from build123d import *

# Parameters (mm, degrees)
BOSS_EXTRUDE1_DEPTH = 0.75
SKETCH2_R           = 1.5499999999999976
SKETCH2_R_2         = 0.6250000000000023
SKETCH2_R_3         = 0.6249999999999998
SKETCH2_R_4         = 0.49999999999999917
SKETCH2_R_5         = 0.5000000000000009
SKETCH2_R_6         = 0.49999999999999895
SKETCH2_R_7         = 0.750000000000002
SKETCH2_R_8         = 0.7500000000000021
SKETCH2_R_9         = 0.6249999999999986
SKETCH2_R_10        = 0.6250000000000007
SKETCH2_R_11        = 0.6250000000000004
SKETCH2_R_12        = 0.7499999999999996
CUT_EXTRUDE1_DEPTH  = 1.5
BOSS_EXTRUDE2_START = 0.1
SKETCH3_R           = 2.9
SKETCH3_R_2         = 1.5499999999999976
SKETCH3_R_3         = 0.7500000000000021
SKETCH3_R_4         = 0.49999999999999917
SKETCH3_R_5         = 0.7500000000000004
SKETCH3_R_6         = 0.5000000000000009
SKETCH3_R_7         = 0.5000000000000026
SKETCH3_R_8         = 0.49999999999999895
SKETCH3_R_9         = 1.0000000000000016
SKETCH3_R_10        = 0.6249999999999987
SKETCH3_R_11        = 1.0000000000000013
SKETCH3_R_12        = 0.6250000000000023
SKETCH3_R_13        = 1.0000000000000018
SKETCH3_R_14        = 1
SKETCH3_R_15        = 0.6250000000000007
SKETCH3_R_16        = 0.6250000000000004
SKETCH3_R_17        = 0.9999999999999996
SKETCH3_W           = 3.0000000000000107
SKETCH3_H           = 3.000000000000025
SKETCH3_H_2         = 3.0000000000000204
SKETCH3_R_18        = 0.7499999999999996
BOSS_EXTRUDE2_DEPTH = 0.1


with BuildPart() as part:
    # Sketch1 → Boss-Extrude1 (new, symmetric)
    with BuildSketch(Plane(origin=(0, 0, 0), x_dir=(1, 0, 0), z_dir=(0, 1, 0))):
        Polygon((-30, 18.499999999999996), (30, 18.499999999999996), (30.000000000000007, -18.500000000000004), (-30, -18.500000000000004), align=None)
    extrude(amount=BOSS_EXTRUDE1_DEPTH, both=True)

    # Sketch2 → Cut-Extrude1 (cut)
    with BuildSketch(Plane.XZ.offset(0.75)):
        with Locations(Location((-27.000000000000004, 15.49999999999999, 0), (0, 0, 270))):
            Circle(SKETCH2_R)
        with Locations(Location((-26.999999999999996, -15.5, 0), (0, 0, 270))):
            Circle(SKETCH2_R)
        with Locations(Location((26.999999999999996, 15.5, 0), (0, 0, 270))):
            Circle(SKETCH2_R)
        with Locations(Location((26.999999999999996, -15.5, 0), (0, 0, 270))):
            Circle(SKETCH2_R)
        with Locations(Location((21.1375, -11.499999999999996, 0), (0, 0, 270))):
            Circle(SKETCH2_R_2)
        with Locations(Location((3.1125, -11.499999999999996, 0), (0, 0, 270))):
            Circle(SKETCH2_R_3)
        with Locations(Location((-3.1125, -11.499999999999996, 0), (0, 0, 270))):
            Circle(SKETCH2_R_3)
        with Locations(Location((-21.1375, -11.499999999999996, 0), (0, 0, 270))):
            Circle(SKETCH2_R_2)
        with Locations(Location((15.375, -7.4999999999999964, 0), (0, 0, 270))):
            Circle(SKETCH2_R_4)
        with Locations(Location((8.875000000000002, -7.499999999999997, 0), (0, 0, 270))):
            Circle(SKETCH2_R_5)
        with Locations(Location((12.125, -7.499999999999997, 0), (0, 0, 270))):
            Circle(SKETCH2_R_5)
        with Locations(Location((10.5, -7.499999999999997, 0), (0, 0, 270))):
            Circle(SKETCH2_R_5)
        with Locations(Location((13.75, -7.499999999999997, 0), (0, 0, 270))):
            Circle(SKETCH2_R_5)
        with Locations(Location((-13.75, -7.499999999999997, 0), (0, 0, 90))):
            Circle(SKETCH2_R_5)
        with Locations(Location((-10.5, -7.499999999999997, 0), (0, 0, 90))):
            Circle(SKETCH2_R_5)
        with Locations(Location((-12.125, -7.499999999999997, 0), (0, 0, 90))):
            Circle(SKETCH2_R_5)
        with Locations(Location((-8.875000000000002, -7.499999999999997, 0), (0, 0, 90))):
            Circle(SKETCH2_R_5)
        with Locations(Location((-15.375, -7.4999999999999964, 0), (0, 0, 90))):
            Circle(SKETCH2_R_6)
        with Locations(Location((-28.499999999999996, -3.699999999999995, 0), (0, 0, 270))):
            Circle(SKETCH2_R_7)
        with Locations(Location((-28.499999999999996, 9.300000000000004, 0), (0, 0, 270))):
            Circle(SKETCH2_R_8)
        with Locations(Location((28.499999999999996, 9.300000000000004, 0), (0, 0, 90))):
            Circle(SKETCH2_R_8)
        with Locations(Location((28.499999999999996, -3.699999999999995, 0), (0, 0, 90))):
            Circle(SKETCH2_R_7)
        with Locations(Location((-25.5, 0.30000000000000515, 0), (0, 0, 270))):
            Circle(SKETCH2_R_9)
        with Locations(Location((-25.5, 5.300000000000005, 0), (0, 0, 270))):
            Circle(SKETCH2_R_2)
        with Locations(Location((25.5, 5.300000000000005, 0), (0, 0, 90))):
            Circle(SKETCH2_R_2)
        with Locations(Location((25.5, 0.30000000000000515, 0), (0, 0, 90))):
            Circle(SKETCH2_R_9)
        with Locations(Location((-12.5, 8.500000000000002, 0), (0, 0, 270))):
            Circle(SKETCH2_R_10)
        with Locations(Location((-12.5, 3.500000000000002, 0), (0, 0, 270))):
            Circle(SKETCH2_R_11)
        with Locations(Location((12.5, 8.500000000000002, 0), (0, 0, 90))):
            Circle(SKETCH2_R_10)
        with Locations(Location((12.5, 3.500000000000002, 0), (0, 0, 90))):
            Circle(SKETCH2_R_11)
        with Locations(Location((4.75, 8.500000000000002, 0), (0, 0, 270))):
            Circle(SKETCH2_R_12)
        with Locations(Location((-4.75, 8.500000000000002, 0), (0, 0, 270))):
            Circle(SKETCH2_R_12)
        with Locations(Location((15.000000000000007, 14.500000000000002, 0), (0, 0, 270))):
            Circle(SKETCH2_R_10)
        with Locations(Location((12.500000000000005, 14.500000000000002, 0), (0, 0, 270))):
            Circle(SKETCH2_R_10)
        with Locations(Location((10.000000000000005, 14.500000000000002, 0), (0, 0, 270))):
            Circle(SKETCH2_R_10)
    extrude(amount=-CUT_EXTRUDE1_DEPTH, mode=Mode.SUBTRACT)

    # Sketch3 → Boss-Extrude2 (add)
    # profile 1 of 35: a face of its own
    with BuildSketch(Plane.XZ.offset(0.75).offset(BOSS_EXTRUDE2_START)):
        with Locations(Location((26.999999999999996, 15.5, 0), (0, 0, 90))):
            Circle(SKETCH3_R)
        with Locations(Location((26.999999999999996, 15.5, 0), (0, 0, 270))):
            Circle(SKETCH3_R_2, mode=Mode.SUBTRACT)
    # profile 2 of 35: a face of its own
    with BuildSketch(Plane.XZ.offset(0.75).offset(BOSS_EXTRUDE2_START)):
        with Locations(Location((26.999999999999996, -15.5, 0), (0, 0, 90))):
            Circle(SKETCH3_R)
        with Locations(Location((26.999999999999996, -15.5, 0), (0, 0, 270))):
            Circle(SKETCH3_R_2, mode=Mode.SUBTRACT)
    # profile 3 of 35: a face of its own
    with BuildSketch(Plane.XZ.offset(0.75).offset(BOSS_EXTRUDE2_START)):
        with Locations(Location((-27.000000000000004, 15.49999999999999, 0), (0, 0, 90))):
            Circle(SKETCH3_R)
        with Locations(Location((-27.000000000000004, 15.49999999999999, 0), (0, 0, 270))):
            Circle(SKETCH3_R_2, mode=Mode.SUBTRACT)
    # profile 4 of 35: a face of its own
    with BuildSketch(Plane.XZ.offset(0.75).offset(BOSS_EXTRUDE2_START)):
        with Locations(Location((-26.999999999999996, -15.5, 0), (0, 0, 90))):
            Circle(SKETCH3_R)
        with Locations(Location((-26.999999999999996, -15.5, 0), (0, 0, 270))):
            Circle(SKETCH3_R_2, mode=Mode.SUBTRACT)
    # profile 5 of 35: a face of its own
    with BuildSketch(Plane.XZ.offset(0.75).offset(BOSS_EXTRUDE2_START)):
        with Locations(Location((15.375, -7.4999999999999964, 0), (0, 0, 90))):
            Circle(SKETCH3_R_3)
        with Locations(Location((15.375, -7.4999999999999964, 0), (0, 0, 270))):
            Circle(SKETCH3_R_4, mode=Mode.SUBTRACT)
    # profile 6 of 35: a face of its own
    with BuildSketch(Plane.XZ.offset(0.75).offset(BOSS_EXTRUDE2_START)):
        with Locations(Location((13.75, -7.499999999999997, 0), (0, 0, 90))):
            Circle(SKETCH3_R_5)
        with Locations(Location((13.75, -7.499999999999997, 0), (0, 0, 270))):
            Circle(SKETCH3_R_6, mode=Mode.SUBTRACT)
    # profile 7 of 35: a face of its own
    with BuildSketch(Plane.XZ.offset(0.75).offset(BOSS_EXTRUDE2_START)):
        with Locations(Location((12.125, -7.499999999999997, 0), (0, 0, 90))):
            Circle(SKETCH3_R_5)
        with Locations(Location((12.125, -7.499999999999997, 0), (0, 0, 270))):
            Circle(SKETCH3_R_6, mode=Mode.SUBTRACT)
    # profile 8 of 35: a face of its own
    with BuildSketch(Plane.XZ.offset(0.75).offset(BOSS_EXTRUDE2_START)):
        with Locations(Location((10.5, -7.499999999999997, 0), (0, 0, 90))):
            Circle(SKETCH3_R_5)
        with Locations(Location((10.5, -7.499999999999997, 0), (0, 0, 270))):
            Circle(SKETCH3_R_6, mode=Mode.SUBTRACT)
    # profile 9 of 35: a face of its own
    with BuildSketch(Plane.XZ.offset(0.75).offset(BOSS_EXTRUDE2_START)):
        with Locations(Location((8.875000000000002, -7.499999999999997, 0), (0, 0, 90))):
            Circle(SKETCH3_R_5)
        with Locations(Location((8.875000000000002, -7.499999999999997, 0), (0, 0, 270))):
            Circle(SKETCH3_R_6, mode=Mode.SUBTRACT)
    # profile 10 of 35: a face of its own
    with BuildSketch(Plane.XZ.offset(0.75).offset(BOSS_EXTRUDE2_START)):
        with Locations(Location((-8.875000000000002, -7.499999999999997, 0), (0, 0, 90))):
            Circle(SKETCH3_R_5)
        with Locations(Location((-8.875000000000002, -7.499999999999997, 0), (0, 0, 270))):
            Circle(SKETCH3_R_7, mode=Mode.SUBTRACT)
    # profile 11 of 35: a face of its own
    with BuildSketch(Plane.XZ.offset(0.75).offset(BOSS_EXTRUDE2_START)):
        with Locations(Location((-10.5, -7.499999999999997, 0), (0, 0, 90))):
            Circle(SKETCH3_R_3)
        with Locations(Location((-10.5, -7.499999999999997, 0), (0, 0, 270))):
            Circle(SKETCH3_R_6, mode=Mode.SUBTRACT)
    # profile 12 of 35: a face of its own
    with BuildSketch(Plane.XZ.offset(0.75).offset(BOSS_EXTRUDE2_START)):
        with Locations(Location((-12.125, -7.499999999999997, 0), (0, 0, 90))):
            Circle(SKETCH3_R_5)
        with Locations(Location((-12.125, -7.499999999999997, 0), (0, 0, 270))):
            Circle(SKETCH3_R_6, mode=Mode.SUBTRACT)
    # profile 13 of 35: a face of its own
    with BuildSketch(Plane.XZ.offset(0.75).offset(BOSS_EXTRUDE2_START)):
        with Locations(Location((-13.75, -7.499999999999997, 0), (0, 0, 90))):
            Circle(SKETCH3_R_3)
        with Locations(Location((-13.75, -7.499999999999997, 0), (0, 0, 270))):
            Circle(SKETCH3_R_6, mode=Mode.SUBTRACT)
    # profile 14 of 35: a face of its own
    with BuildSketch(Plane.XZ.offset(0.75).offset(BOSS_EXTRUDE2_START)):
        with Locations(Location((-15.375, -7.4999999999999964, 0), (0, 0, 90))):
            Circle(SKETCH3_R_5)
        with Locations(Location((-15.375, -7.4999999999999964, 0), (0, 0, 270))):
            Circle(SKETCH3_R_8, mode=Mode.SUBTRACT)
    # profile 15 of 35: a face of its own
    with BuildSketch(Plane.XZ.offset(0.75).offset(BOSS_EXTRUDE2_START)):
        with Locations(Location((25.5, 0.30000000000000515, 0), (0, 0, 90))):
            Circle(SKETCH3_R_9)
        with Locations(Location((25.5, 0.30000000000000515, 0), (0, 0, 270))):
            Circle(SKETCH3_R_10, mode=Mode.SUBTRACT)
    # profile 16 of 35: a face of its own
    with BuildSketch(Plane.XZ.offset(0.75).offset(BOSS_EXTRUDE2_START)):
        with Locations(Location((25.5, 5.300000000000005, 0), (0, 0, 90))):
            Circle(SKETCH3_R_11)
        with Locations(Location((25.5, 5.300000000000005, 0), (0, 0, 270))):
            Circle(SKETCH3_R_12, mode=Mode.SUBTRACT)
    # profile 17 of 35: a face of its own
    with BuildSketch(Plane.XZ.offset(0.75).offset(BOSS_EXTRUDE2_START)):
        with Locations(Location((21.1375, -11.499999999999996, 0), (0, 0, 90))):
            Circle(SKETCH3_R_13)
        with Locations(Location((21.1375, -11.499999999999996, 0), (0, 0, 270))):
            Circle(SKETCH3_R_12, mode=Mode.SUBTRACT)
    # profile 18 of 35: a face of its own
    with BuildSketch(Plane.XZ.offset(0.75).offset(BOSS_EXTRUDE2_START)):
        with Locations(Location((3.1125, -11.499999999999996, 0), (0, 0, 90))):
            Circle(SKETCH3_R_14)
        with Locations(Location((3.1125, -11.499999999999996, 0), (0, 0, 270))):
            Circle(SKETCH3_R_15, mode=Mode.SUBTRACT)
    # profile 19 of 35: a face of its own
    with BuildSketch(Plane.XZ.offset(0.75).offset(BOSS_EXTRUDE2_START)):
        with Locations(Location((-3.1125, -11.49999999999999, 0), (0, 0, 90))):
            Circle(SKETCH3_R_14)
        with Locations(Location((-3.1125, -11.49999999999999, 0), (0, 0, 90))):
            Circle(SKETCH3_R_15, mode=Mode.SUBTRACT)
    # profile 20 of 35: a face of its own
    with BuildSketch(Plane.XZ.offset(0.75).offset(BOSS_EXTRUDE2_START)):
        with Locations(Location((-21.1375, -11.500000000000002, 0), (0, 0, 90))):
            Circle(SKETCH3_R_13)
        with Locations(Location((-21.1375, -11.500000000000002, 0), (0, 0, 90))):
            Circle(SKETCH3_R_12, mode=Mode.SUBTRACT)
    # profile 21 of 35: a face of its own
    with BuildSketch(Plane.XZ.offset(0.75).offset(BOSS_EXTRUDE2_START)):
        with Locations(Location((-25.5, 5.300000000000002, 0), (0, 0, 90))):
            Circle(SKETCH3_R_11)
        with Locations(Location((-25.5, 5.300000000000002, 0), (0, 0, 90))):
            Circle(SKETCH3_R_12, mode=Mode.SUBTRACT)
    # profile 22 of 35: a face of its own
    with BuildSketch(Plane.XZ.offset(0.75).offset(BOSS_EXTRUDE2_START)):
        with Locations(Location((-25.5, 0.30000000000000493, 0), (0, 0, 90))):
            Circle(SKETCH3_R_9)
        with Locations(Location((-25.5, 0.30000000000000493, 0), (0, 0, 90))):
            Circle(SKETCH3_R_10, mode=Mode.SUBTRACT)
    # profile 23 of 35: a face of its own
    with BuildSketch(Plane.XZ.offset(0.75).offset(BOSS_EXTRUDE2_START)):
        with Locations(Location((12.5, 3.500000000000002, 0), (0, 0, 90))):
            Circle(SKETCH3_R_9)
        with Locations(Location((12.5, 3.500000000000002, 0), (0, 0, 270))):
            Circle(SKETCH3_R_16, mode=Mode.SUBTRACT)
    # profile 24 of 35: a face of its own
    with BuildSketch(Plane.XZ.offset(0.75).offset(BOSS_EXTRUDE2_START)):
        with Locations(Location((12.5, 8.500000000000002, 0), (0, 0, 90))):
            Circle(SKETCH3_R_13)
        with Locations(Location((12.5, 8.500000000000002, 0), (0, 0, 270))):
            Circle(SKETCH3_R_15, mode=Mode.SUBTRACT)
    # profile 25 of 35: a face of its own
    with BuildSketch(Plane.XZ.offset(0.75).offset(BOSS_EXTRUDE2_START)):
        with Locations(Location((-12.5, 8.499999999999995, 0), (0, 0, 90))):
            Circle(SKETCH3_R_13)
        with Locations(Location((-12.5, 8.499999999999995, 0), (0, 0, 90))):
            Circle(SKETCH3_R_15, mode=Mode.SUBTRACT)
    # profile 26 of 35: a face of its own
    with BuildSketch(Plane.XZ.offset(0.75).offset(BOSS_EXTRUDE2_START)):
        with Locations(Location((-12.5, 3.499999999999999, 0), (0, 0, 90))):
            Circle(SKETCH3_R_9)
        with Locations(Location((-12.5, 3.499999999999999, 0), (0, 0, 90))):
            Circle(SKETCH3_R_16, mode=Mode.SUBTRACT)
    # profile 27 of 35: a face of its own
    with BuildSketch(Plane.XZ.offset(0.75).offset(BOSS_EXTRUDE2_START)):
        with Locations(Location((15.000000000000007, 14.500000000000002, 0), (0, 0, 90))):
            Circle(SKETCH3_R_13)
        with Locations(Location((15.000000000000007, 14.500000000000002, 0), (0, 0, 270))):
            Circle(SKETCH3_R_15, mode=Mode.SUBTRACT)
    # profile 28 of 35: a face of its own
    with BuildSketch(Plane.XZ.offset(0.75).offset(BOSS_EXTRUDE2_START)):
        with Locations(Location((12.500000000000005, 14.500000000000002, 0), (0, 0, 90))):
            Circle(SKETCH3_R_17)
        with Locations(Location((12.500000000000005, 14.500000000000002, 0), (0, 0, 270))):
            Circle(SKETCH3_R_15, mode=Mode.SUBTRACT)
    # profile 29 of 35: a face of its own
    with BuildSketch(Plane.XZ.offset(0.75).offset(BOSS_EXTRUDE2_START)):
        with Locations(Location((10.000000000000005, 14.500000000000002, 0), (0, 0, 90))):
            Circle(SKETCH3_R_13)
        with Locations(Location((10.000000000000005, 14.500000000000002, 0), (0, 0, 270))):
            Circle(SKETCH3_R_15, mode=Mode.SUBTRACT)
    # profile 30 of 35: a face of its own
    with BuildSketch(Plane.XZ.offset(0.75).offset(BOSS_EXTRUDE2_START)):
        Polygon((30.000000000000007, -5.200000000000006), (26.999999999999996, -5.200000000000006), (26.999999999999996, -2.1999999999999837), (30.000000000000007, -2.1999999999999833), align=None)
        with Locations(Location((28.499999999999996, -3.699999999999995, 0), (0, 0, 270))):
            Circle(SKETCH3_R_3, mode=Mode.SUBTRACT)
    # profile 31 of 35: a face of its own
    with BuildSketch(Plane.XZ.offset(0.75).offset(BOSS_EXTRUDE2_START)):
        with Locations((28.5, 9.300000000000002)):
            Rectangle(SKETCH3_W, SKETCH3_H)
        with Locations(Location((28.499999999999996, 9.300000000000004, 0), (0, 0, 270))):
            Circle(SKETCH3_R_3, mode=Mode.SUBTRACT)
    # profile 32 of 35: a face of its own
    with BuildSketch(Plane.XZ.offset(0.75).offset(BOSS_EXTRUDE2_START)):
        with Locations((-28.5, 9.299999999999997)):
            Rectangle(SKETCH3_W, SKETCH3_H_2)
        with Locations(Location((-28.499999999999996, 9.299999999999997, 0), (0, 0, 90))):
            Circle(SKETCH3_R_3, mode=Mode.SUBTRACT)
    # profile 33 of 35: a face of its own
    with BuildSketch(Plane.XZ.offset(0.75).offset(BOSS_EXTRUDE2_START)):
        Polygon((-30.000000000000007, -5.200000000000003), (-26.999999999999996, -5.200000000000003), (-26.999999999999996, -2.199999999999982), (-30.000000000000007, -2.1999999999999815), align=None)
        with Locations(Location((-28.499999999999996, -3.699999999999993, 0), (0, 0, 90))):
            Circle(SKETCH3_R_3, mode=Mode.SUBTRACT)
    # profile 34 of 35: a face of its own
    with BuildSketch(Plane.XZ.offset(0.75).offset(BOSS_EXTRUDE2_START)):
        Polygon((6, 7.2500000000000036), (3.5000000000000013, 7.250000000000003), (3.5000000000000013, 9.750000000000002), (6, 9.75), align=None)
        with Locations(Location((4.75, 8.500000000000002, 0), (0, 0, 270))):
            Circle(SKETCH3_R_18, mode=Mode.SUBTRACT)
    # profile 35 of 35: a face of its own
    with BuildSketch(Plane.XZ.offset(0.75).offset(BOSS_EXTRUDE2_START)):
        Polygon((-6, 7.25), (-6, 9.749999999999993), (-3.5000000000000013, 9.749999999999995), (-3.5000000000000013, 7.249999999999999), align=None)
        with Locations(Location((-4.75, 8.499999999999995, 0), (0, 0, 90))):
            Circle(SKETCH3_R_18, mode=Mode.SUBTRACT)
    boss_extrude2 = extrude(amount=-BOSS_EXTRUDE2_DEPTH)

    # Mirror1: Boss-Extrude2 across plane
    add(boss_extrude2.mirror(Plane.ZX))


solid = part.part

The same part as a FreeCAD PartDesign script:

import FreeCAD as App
import Part
import Sketcher

V = App.Vector

doc = App.newDocument("Part")
params = doc.addObject("Spreadsheet::Sheet", "Params")
for row, (alias, value) in enumerate([
    ("sketch1_width", "60 mm"),
    ("sketch1_height", "37 mm"),
    ("pad1_length", "1.5 mm"),
    ("sketch2_diameter", "1 mm"),
    ("sketch2_diameter2", "3.1 mm"),
    ("sketch2_diameter3", "1.5 mm"),
    ("sketch2_diameter4", "1.25 mm"),
    ("pocket1_length", "1.5 mm"),
    ("sketch3_diameter", "1 mm"),
    ("sketch3_diameter2", "2 mm"),
    ("sketch3_diameter3", "5.8 mm"),
    ("sketch3_diameter4", "3.1 mm"),
    ("sketch3_diameter5", "1.5 mm"),
    ("pad2_length", "0.1 mm"),
], start=1):
    params.set(f"A{row}", alias)
    params.set(f"B{row}", "=" + value)
    params.setAlias(f"B{row}", alias)

body = doc.addObject("PartDesign::Body", "Body")

# Sketch on XZ plane
sketch1 = body.newObject("Sketcher::SketchObject", "Sketch")
sketch1.AttachmentSupport = (doc.getObject("XZ_Plane"), [""])
sketch1.MapMode = "FlatFace"
sketch1.addGeometry([
    Part.LineSegment(V(30, -18.5, 0), V(-30, -18.5, 0)),
    Part.LineSegment(V(-30, -18.5, 0), V(-30, 18.5, 0)),
    Part.LineSegment(V(-30, 18.5, 0), V(30, 18.5, 0)),
    Part.LineSegment(V(30, 18.5, 0), V(30, -18.5, 0)),
], False)
sketch1.addConstraint([
    Sketcher.Constraint("Coincident", 0, 2, 1, 1),
    Sketcher.Constraint("Coincident", 1, 2, 2, 1),
    Sketcher.Constraint("Coincident", 2, 2, 3, 1),
    Sketcher.Constraint("Coincident", 3, 2, 0, 1),
    Sketcher.Constraint("Horizontal", 0),
    Sketcher.Constraint("Vertical", 1),
    Sketcher.Constraint("Horizontal", 2),
    Sketcher.Constraint("Vertical", 3),
    Sketcher.Constraint("Symmetric", 0, 2, 2, 2, -1, 1),
    Sketcher.Constraint("DistanceX", 0, 2, 0, 1, 60.0),
    Sketcher.Constraint("DistanceY", 1, 1, 1, 2, 37.0),
])
sketch1.setExpression("Constraints[9]", "Params.sketch1_width")
sketch1.setExpression("Constraints[10]", "Params.sketch1_height")
pad1 = body.newObject("PartDesign::Pad", "Pad")
pad1.Profile = sketch1
pad1.setExpression("Length", "Params.pad1_length")
pad1.Midplane = True

# Sketch on XZ plane
sketch2 = body.newObject("Sketcher::SketchObject", "Sketch001")
sketch2.AttachmentSupport = (doc.getObject("XZ_Plane"), [""])
sketch2.MapMode = "FlatFace"
sketch2.AttachmentOffset = App.Placement(V(0, 0, 0.75), App.Rotation())
sketch2.addGeometry([
    Part.Circle(V(-27, 15.5, 0), V(0, 0, 1), 1.55),  # 0
    Part.Circle(V(-27, -15.5, 0), V(0, 0, 1), 1.55),  # 1
    Part.Circle(V(27, 15.5, 0), V(0, 0, 1), 1.55),  # 2
    Part.Circle(V(27, -15.5, 0), V(0, 0, 1), 1.55),  # 3
    Part.Circle(V(21.1375, -11.5, 0), V(0, 0, 1), 0.625),  # 4
    Part.Circle(V(3.1125, -11.5, 0), V(0, 0, 1), 0.625),  # 5
    Part.Circle(V(-3.1125, -11.5, 0), V(0, 0, 1), 0.625),  # 6
    Part.Circle(V(-21.1375, -11.5, 0), V(0, 0, 1), 0.625),  # 7
    Part.Circle(V(15.375, -7.5, 0), V(0, 0, 1), 0.5),  # 8
    Part.Circle(V(8.875, -7.5, 0), V(0, 0, 1), 0.5),  # 9
    Part.Circle(V(12.125, -7.5, 0), V(0, 0, 1), 0.5),  # 10
    Part.Circle(V(10.5, -7.5, 0), V(0, 0, 1), 0.5),  # 11
    Part.Circle(V(13.75, -7.5, 0), V(0, 0, 1), 0.5),  # 12
    Part.Circle(V(-13.75, -7.5, 0), V(0, 0, 1), 0.5),  # 13
    Part.Circle(V(-10.5, -7.5, 0), V(0, 0, 1), 0.5),  # 14
    Part.Circle(V(-12.125, -7.5, 0), V(0, 0, 1), 0.5),  # 15
    Part.Circle(V(-8.875, -7.5, 0), V(0, 0, 1), 0.5),  # 16
    Part.Circle(V(-15.375, -7.5, 0), V(0, 0, 1), 0.5),  # 17
    Part.Circle(V(-28.5, -3.7, 0), V(0, 0, 1), 0.75),  # 18
    Part.Circle(V(-28.5, 9.3, 0), V(0, 0, 1), 0.75),  # 19
    Part.Circle(V(28.5, 9.3, 0), V(0, 0, 1), 0.75),  # 20
    Part.Circle(V(28.5, -3.7, 0), V(0, 0, 1), 0.75),  # 21
    Part.Circle(V(-25.5, 0.3, 0), V(0, 0, 1), 0.625),  # 22
    Part.Circle(V(-25.5, 5.3, 0), V(0, 0, 1), 0.625),  # 23
    Part.Circle(V(25.5, 5.3, 0), V(0, 0, 1), 0.625),  # 24
    Part.Circle(V(25.5, 0.3, 0), V(0, 0, 1), 0.625),  # 25
    Part.Circle(V(-12.5, 8.5, 0), V(0, 0, 1), 0.625),  # 26
    Part.Circle(V(-12.5, 3.5, 0), V(0, 0, 1), 0.625),  # 27
    Part.Circle(V(12.5, 8.5, 0), V(0, 0, 1), 0.625),  # 28
    Part.Circle(V(12.5, 3.5, 0), V(0, 0, 1), 0.625),  # 29
    Part.Circle(V(4.75, 8.5, 0), V(0, 0, 1), 0.75),  # 30
    Part.Circle(V(-4.75, 8.5, 0), V(0, 0, 1), 0.75),  # 31
    Part.Circle(V(15, 14.5, 0), V(0, 0, 1), 0.625),  # 32
    Part.Circle(V(12.5, 14.5, 0), V(0, 0, 1), 0.625),  # 33
    Part.Circle(V(10, 14.5, 0), V(0, 0, 1), 0.625),  # 34
], False)
sketch2.addConstraint([
    Sketcher.Constraint("Equal", 0, 1),
    Sketcher.Constraint("Equal", 1, 2),
    Sketcher.Constraint("Equal", 2, 3),
    Sketcher.Constraint("Equal", 4, 5),
    Sketcher.Constraint("Equal", 5, 6),
    Sketcher.Constraint("Equal", 6, 7),
    Sketcher.Constraint("Equal", 8, 9),
    Sketcher.Constraint("Equal", 9, 10),
    Sketcher.Constraint("Equal", 10, 11),
    Sketcher.Constraint("Equal", 11, 12),
    Sketcher.Constraint("Equal", 12, 13),
    Sketcher.Constraint("Equal", 13, 14),
    Sketcher.Constraint("Equal", 14, 15),
    Sketcher.Constraint("Equal", 15, 16),
    Sketcher.Constraint("Equal", 16, 17),
    Sketcher.Constraint("Equal", 18, 19),
    Sketcher.Constraint("Equal", 19, 20),
    Sketcher.Constraint("Equal", 20, 21),
    Sketcher.Constraint("Equal", 7, 22),
    Sketcher.Constraint("Equal", 22, 23),
    Sketcher.Constraint("Equal", 23, 24),
    Sketcher.Constraint("Equal", 24, 25),
    Sketcher.Constraint("Equal", 25, 26),
    Sketcher.Constraint("Equal", 26, 27),
    Sketcher.Constraint("Equal", 27, 28),
    Sketcher.Constraint("Equal", 28, 29),
    Sketcher.Constraint("Equal", 21, 30),
    Sketcher.Constraint("Equal", 30, 31),
    Sketcher.Constraint("Equal", 29, 32),
    Sketcher.Constraint("Equal", 32, 33),
    Sketcher.Constraint("Equal", 33, 34),
    Sketcher.Constraint("Symmetric", 1, 3, 2, 3, -1, 1),
    Sketcher.Constraint("Symmetric", 0, 3, 3, 3, -1, 1),
    Sketcher.Constraint("Symmetric", 0, 3, 2, 3, -2),
    Sketcher.Constraint("Symmetric", 5, 3, 6, 3, -2),
    Sketcher.Constraint("Symmetric", 4, 3, 7, 3, -2),
    Sketcher.Constraint("Symmetric", 12, 3, 13, 3, -2),
    Sketcher.Constraint("Symmetric", 11, 3, 14, 3, -2),
    Sketcher.Constraint("Symmetric", 10, 3, 15, 3, -2),
    Sketcher.Constraint("Symmetric", 9, 3, 16, 3, -2),
    Sketcher.Constraint("Symmetric", 8, 3, 17, 3, -2),
    Sketcher.Constraint("Symmetric", 19, 3, 20, 3, -2),
    Sketcher.Constraint("Symmetric", 18, 3, 21, 3, -2),
    Sketcher.Constraint("Symmetric", 23, 3, 24, 3, -2),
    Sketcher.Constraint("Symmetric", 22, 3, 25, 3, -2),
    Sketcher.Constraint("Symmetric", 26, 3, 28, 3, -2),
    Sketcher.Constraint("Symmetric", 27, 3, 29, 3, -2),
    Sketcher.Constraint("Symmetric", 30, 3, 31, 3, -2),
    Sketcher.Constraint("Horizontal", 4, 3, 5, 3),
    Sketcher.Constraint("Horizontal", 8, 3, 9, 3),
    Sketcher.Constraint("Horizontal", 9, 3, 10, 3),
    Sketcher.Constraint("Horizontal", 10, 3, 11, 3),
    Sketcher.Constraint("Horizontal", 11, 3, 12, 3),
    Sketcher.Constraint("Horizontal", 28, 3, 30, 3),
    Sketcher.Constraint("Horizontal", 32, 3, 33, 3),
    Sketcher.Constraint("Horizontal", 33, 3, 34, 3),
    Sketcher.Constraint("Vertical", 18, 3, 19, 3),
    Sketcher.Constraint("Vertical", 22, 3, 23, 3),
    Sketcher.Constraint("Vertical", 26, 3, 27, 3),
    Sketcher.Constraint("Vertical", 29, 3, 33, 3),
    Sketcher.Constraint("Diameter", 8, 1.0),
    Sketcher.Constraint("Diameter", 0, 3.1),
    Sketcher.Constraint("Diameter", 18, 1.5),
    Sketcher.Constraint("Diameter", 4, 1.25),
    Sketcher.Constraint("DistanceX", 0, 3, -1, 1, 27.0),
    Sketcher.Constraint("DistanceX", -1, 1, 32, 3, 15.0),
    Sketcher.Constraint("DistanceX", -1, 1, 34, 3, 10.0),
    Sketcher.Constraint("DistanceY", 1, 3, 0, 3, 31.0),
    Sketcher.Constraint("DistanceY", 3, 3, 4, 3, 4.0),
    Sketcher.Constraint("DistanceY", 4, 3, 8, 3, 4.0),
    Sketcher.Constraint("DistanceY", 18, 3, 19, 3, 13.0),
    Sketcher.Constraint("DistanceX", 18, 3, 22, 3, 3.0),
    Sketcher.Constraint("DistanceY", 18, 3, 22, 3, 4.0),
    Sketcher.Constraint("DistanceY", 22, 3, 23, 3, 5.0),
    Sketcher.Constraint("DistanceX", 23, 3, 26, 3, 13.0),
    Sketcher.Constraint("DistanceY", 15, 3, 26, 3, 16.0),
    Sketcher.Constraint("DistanceY", 27, 3, 26, 3, 5.0),
    Sketcher.Constraint("DistanceX", 27, 3, 14, 3, 2.0),
    Sketcher.Constraint("DistanceY", 28, 3, 32, 3, 6.0),
    Sketcher.Constraint("DistanceX", -1, 1, 11, 3, 10.5),
    Sketcher.Constraint("DistanceY", 18, 3, -1, 1, 3.7),
    Sketcher.Constraint("DistanceX", 9, 3, 8, 3, 6.5),
    Sketcher.Constraint("DistanceX", 31, 3, 30, 3, 9.5),
    Sketcher.Constraint("DistanceX", -1, 1, 12, 3, 13.75),
    Sketcher.Constraint("DistanceX", 6, 3, 4, 3, 24.25),
    Sketcher.Constraint("DistanceX", 10, 3, 8, 3, 3.25),
    Sketcher.Constraint("DistanceX", -1, 1, 8, 3, 15.375),
    Sketcher.Constraint("DistanceX", 5, 3, 4, 3, 18.025),
])
sketch2.setExpression("Constraints[60]", "Params.sketch2_diameter")
sketch2.setExpression("Constraints[61]", "Params.sketch2_diameter2")
sketch2.setExpression("Constraints[62]", "Params.sketch2_diameter3")
sketch2.setExpression("Constraints[63]", "Params.sketch2_diameter4")
pocket1 = body.newObject("PartDesign::Pocket", "Pocket")
pocket1.Profile = sketch2
pocket1.setExpression("Length", "Params.pocket1_length")

# Sketch on XZ plane
sketch3 = body.newObject("Sketcher::SketchObject", "Sketch002")
sketch3.AttachmentSupport = (doc.getObject("XZ_Plane"), [""])
sketch3.MapMode = "FlatFace"
sketch3.AttachmentOffset = App.Placement(V(0, 0, 0.85), App.Rotation())
sketch3.addGeometry([
    Part.Circle(V(27, 15.5, 0), V(0, 0, 1), 2.9),  # 0
    Part.Circle(V(27, 15.5, 0), V(0, 0, 1), 1.55),  # 1
    Part.Circle(V(27, -15.5, 0), V(0, 0, 1), 2.9),  # 2
    Part.Circle(V(27, -15.5, 0), V(0, 0, 1), 1.55),  # 3
    Part.Circle(V(-27, 15.5, 0), V(0, 0, 1), 2.9),  # 4
    Part.Circle(V(-27, 15.5, 0), V(0, 0, 1), 1.55),  # 5
    Part.Circle(V(-27, -15.5, 0), V(0, 0, 1), 2.9),  # 6
    Part.Circle(V(-27, -15.5, 0), V(0, 0, 1), 1.55),  # 7
    Part.Circle(V(15.375, -7.5, 0), V(0, 0, 1), 0.75),  # 8
    Part.Circle(V(15.375, -7.5, 0), V(0, 0, 1), 0.5),  # 9
    Part.Circle(V(13.75, -7.5, 0), V(0, 0, 1), 0.75),  # 10
    Part.Circle(V(13.75, -7.5, 0), V(0, 0, 1), 0.5),  # 11
    Part.Circle(V(12.125, -7.5, 0), V(0, 0, 1), 0.75),  # 12
    Part.Circle(V(12.125, -7.5, 0), V(0, 0, 1), 0.5),  # 13
    Part.Circle(V(10.5, -7.5, 0), V(0, 0, 1), 0.75),  # 14
    Part.Circle(V(10.5, -7.5, 0), V(0, 0, 1), 0.5),  # 15
    Part.Circle(V(8.875, -7.5, 0), V(0, 0, 1), 0.75),  # 16
    Part.Circle(V(8.875, -7.5, 0), V(0, 0, 1), 0.5),  # 17
    Part.Circle(V(-8.875, -7.5, 0), V(0, 0, 1), 0.75),  # 18
    Part.Circle(V(-8.875, -7.5, 0), V(0, 0, 1), 0.5),  # 19
    Part.Circle(V(-10.5, -7.5, 0), V(0, 0, 1), 0.75),  # 20
    Part.Circle(V(-10.5, -7.5, 0), V(0, 0, 1), 0.5),  # 21
    Part.Circle(V(-12.125, -7.5, 0), V(0, 0, 1), 0.75),  # 22
    Part.Circle(V(-12.125, -7.5, 0), V(0, 0, 1), 0.5),  # 23
    Part.Circle(V(-13.75, -7.5, 0), V(0, 0, 1), 0.75),  # 24
    Part.Circle(V(-13.75, -7.5, 0), V(0, 0, 1), 0.5),  # 25
    Part.Circle(V(-15.375, -7.5, 0), V(0, 0, 1), 0.75),  # 26
    Part.Circle(V(-15.375, -7.5, 0), V(0, 0, 1), 0.5),  # 27
    Part.Circle(V(25.5, 0.3, 0), V(0, 0, 1), 1),  # 28
    Part.Circle(V(25.5, 0.3, 0), V(0, 0, 1), 0.625),  # 29
    Part.Circle(V(25.5, 5.3, 0), V(0, 0, 1), 1),  # 30
    Part.Circle(V(25.5, 5.3, 0), V(0, 0, 1), 0.625),  # 31
    Part.Circle(V(21.1375, -11.5, 0), V(0, 0, 1), 1),  # 32
    Part.Circle(V(21.1375, -11.5, 0), V(0, 0, 1), 0.625),  # 33
    Part.Circle(V(3.1125, -11.5, 0), V(0, 0, 1), 1),  # 34
    Part.Circle(V(3.1125, -11.5, 0), V(0, 0, 1), 0.625),  # 35
    Part.Circle(V(-3.1125, -11.5, 0), V(0, 0, 1), 1),  # 36
    Part.Circle(V(-3.1125, -11.5, 0), V(0, 0, 1), 0.625),  # 37
    Part.Circle(V(-21.1375, -11.5, 0), V(0, 0, 1), 1),  # 38
    Part.Circle(V(-21.1375, -11.5, 0), V(0, 0, 1), 0.625),  # 39
    Part.Circle(V(-25.5, 5.3, 0), V(0, 0, 1), 1),  # 40
    Part.Circle(V(-25.5, 5.3, 0), V(0, 0, 1), 0.625),  # 41
    Part.Circle(V(-25.5, 0.3, 0), V(0, 0, 1), 1),  # 42
    Part.Circle(V(-25.5, 0.3, 0), V(0, 0, 1), 0.625),  # 43
    Part.Circle(V(12.5, 3.5, 0), V(0, 0, 1), 1),  # 44
    Part.Circle(V(12.5, 3.5, 0), V(0, 0, 1), 0.625),  # 45
    Part.Circle(V(12.5, 8.5, 0), V(0, 0, 1), 1),  # 46
    Part.Circle(V(12.5, 8.5, 0), V(0, 0, 1), 0.625),  # 47
    Part.Circle(V(-12.5, 8.5, 0), V(0, 0, 1), 1),  # 48
    Part.Circle(V(-12.5, 8.5, 0), V(0, 0, 1), 0.625),  # 49
    Part.Circle(V(-12.5, 3.5, 0), V(0, 0, 1), 1),  # 50
    Part.Circle(V(-12.5, 3.5, 0), V(0, 0, 1), 0.625),  # 51
    Part.Circle(V(15, 14.5, 0), V(0, 0, 1), 1),  # 52
    Part.Circle(V(15, 14.5, 0), V(0, 0, 1), 0.625),  # 53
    Part.Circle(V(12.5, 14.5, 0), V(0, 0, 1), 1),  # 54
    Part.Circle(V(12.5, 14.5, 0), V(0, 0, 1), 0.625),  # 55
    Part.Circle(V(10, 14.5, 0), V(0, 0, 1), 1),  # 56
    Part.Circle(V(10, 14.5, 0), V(0, 0, 1), 0.625),  # 57
    Part.LineSegment(V(27, -5.2, 0), V(30, -5.2, 0)),  # 58
    Part.LineSegment(V(30, -5.2, 0), V(30, -2.2, 0)),  # 59
    Part.LineSegment(V(30, -2.2, 0), V(27, -2.2, 0)),  # 60
    Part.LineSegment(V(27, -2.2, 0), V(27, -5.2, 0)),  # 61
    Part.Circle(V(28.5, -3.7, 0), V(0, 0, 1), 0.75),  # 62
    Part.LineSegment(V(27, 10.8, 0), V(27, 7.8, 0)),  # 63
    Part.LineSegment(V(27, 7.8, 0), V(30, 7.8, 0)),  # 64
    Part.LineSegment(V(30, 7.8, 0), V(30, 10.8, 0)),  # 65
    Part.LineSegment(V(30, 10.8, 0), V(27, 10.8, 0)),  # 66
    Part.Circle(V(28.5, 9.3, 0), V(0, 0, 1), 0.75),  # 67
    Part.LineSegment(V(-30, 10.8, 0), V(-30, 7.8, 0)),  # 68
    Part.LineSegment(V(-30, 7.8, 0), V(-27, 7.8, 0)),  # 69
    Part.LineSegment(V(-27, 7.8, 0), V(-27, 10.8, 0)),  # 70
    Part.LineSegment(V(-27, 10.8, 0), V(-30, 10.8, 0)),  # 71
    Part.Circle(V(-28.5, 9.3, 0), V(0, 0, 1), 0.75),  # 72
    Part.LineSegment(V(-30, -5.2, 0), V(-27, -5.2, 0)),  # 73
    Part.LineSegment(V(-27, -5.2, 0), V(-27, -2.2, 0)),  # 74
    Part.LineSegment(V(-27, -2.2, 0), V(-30, -2.2, 0)),  # 75
    Part.LineSegment(V(-30, -2.2, 0), V(-30, -5.2, 0)),  # 76
    Part.Circle(V(-28.5, -3.7, 0), V(0, 0, 1), 0.75),  # 77
    Part.LineSegment(V(3.5, 7.25, 0), V(6, 7.25, 0)),  # 78
    Part.LineSegment(V(6, 7.25, 0), V(6, 9.75, 0)),  # 79
    Part.LineSegment(V(6, 9.75, 0), V(3.5, 9.75, 0)),  # 80
    Part.LineSegment(V(3.5, 9.75, 0), V(3.5, 7.25, 0)),  # 81
    Part.Circle(V(4.75, 8.5, 0), V(0, 0, 1), 0.75),  # 82
    Part.LineSegment(V(-6, 9.75, 0), V(-6, 7.25, 0)),  # 83
    Part.LineSegment(V(-6, 7.25, 0), V(-3.5, 7.25, 0)),  # 84
    Part.LineSegment(V(-3.5, 7.25, 0), V(-3.5, 9.75, 0)),  # 85
    Part.LineSegment(V(-3.5, 9.75, 0), V(-6, 9.75, 0)),  # 86
    Part.Circle(V(-4.75, 8.5, 0), V(0, 0, 1), 0.75),  # 87
], False)
sketch3.addConstraint([
    Sketcher.Constraint("Coincident", 58, 2, 59, 1),
    Sketcher.Constraint("Coincident", 59, 2, 60, 1),
    Sketcher.Constraint("Coincident", 60, 2, 61, 1),
    Sketcher.Constraint("Coincident", 61, 2, 58, 1),
    Sketcher.Constraint("Coincident", 63, 2, 64, 1),
    Sketcher.Constraint("Coincident", 64, 2, 65, 1),
    Sketcher.Constraint("Coincident", 65, 2, 66, 1),
    Sketcher.Constraint("Coincident", 66, 2, 63, 1),
    Sketcher.Constraint("Coincident", 68, 2, 69, 1),
    Sketcher.Constraint("Coincident", 69, 2, 70, 1),
    Sketcher.Constraint("Coincident", 70, 2, 71, 1),
    Sketcher.Constraint("Coincident", 71, 2, 68, 1),
    Sketcher.Constraint("Coincident", 73, 2, 74, 1),
    Sketcher.Constraint("Coincident", 74, 2, 75, 1),
    Sketcher.Constraint("Coincident", 75, 2, 76, 1),
    Sketcher.Constraint("Coincident", 76, 2, 73, 1),
    Sketcher.Constraint("Coincident", 78, 2, 79, 1),
    Sketcher.Constraint("Coincident", 79, 2, 80, 1),
    Sketcher.Constraint("Coincident", 80, 2, 81, 1),
    Sketcher.Constraint("Coincident", 81, 2, 78, 1),
    Sketcher.Constraint("Coincident", 83, 2, 84, 1),
    Sketcher.Constraint("Coincident", 84, 2, 85, 1),
    Sketcher.Constraint("Coincident", 85, 2, 86, 1),
    Sketcher.Constraint("Coincident", 86, 2, 83, 1),
    Sketcher.Constraint("Horizontal", 58),
    Sketcher.Constraint("Vertical", 59),
    Sketcher.Constraint("Horizontal", 60),
    Sketcher.Constraint("Vertical", 61),
    Sketcher.Constraint("Vertical", 63),
    Sketcher.Constraint("Horizontal", 64),
    Sketcher.Constraint("Vertical", 65),
    Sketcher.Constraint("Horizontal", 66),
    Sketcher.Constraint("Vertical", 68),
    Sketcher.Constraint("Horizontal", 69),
    Sketcher.Constraint("Vertical", 70),
    Sketcher.Constraint("Horizontal", 71),
    Sketcher.Constraint("Horizontal", 73),
    Sketcher.Constraint("Vertical", 74),
    Sketcher.Constraint("Horizontal", 75),
    Sketcher.Constraint("Vertical", 76),
    Sketcher.Constraint("Horizontal", 78),
    Sketcher.Constraint("Vertical", 79),
    Sketcher.Constraint("Horizontal", 80),
    Sketcher.Constraint("Vertical", 81),
    Sketcher.Constraint("Vertical", 83),
    Sketcher.Constraint("Horizontal", 84),
    Sketcher.Constraint("Vertical", 85),
    Sketcher.Constraint("Horizontal", 86),
    Sketcher.Constraint("Coincident", 1, 3, 0, 3),
    Sketcher.Constraint("Coincident", 3, 3, 2, 3),
    Sketcher.Constraint("Coincident", 5, 3, 4, 3),
    Sketcher.Constraint("Coincident", 7, 3, 6, 3),
    Sketcher.Constraint("Coincident", 9, 3, 8, 3),
    Sketcher.Constraint("Coincident", 11, 3, 10, 3),
    Sketcher.Constraint("Coincident", 13, 3, 12, 3),
    Sketcher.Constraint("Coincident", 15, 3, 14, 3),
    Sketcher.Constraint("Coincident", 17, 3, 16, 3),
    Sketcher.Constraint("Coincident", 19, 3, 18, 3),
    Sketcher.Constraint("Coincident", 21, 3, 20, 3),
    Sketcher.Constraint("Coincident", 23, 3, 22, 3),
    Sketcher.Constraint("Coincident", 25, 3, 24, 3),
    Sketcher.Constraint("Coincident", 27, 3, 26, 3),
    Sketcher.Constraint("Coincident", 29, 3, 28, 3),
    Sketcher.Constraint("Coincident", 31, 3, 30, 3),
    Sketcher.Constraint("Coincident", 33, 3, 32, 3),
    Sketcher.Constraint("Coincident", 35, 3, 34, 3),
    Sketcher.Constraint("Coincident", 37, 3, 36, 3),
    Sketcher.Constraint("Coincident", 39, 3, 38, 3),
    Sketcher.Constraint("Coincident", 41, 3, 40, 3),
    Sketcher.Constraint("Coincident", 43, 3, 42, 3),
    Sketcher.Constraint("Coincident", 45, 3, 44, 3),
    Sketcher.Constraint("Coincident", 47, 3, 46, 3),
    Sketcher.Constraint("Coincident", 49, 3, 48, 3),
    Sketcher.Constraint("Coincident", 51, 3, 50, 3),
    Sketcher.Constraint("Coincident", 53, 3, 52, 3),
    Sketcher.Constraint("Coincident", 55, 3, 54, 3),
    Sketcher.Constraint("Coincident", 57, 3, 56, 3),
    Sketcher.Constraint("Equal", 0, 2),
    Sketcher.Constraint("Equal", 1, 3),
    Sketcher.Constraint("Equal", 2, 4),
    Sketcher.Constraint("Equal", 3, 5),
    Sketcher.Constraint("Equal", 4, 6),
    Sketcher.Constraint("Equal", 5, 7),
    Sketcher.Constraint("Equal", 8, 10),
    Sketcher.Constraint("Equal", 9, 11),
    Sketcher.Constraint("Equal", 10, 12),
    Sketcher.Constraint("Equal", 11, 13),
    Sketcher.Constraint("Equal", 12, 14),
    Sketcher.Constraint("Equal", 13, 15),
    Sketcher.Constraint("Equal", 14, 16),
    Sketcher.Constraint("Equal", 15, 17),
    Sketcher.Constraint("Equal", 16, 18),
    Sketcher.Constraint("Equal", 17, 19),
    Sketcher.Constraint("Equal", 18, 20),
    Sketcher.Constraint("Equal", 19, 21),
    Sketcher.Constraint("Equal", 20, 22),
    Sketcher.Constraint("Equal", 21, 23),
    Sketcher.Constraint("Equal", 22, 24),
    Sketcher.Constraint("Equal", 23, 25),
    Sketcher.Constraint("Equal", 24, 26),
    Sketcher.Constraint("Equal", 25, 27),
    Sketcher.Constraint("Equal", 28, 30),
    Sketcher.Constraint("Equal", 29, 31),
    Sketcher.Constraint("Equal", 30, 32),
    Sketcher.Constraint("Equal", 31, 33),
    Sketcher.Constraint("Equal", 32, 34),
    Sketcher.Constraint("Equal", 33, 35),
    Sketcher.Constraint("Equal", 34, 36),
    Sketcher.Constraint("Equal", 35, 37),
    Sketcher.Constraint("Equal", 36, 38),
    Sketcher.Constraint("Equal", 37, 39),
    Sketcher.Constraint("Equal", 38, 40),
    Sketcher.Constraint("Equal", 39, 41),
    Sketcher.Constraint("Equal", 40, 42),
    Sketcher.Constraint("Equal", 41, 43),
    Sketcher.Constraint("Equal", 42, 44),
    Sketcher.Constraint("Equal", 43, 45),
    Sketcher.Constraint("Equal", 44, 46),
    Sketcher.Constraint("Equal", 45, 47),
    Sketcher.Constraint("Equal", 46, 48),
    Sketcher.Constraint("Equal", 47, 49),
    Sketcher.Constraint("Equal", 48, 50),
    Sketcher.Constraint("Equal", 49, 51),
    Sketcher.Constraint("Equal", 50, 52),
    Sketcher.Constraint("Equal", 51, 53),
    Sketcher.Constraint("Equal", 52, 54),
    Sketcher.Constraint("Equal", 53, 55),
    Sketcher.Constraint("Equal", 54, 56),
    Sketcher.Constraint("Equal", 55, 57),
    Sketcher.Constraint("Equal", 26, 62),
    Sketcher.Constraint("Equal", 62, 67),
    Sketcher.Constraint("Equal", 67, 72),
    Sketcher.Constraint("Equal", 72, 77),
    Sketcher.Constraint("Equal", 77, 82),
    Sketcher.Constraint("Equal", 82, 87),
    Sketcher.Constraint("Symmetric", 2, 3, 4, 3, -1, 1),
    Sketcher.Constraint("Symmetric", 0, 3, 6, 3, -1, 1),
    Sketcher.Constraint("Symmetric", 0, 3, 4, 3, -2),
    Sketcher.Constraint("Symmetric", 16, 3, 18, 3, -2),
    Sketcher.Constraint("Symmetric", 14, 3, 20, 3, -2),
    Sketcher.Constraint("Symmetric", 12, 3, 22, 3, -2),
    Sketcher.Constraint("Symmetric", 10, 3, 24, 3, -2),
    Sketcher.Constraint("Symmetric", 8, 3, 26, 3, -2),
    Sketcher.Constraint("Symmetric", 34, 3, 36, 3, -2),
    Sketcher.Constraint("Symmetric", 32, 3, 38, 3, -2),
    Sketcher.Constraint("Symmetric", 30, 3, 40, 3, -2),
    Sketcher.Constraint("Symmetric", 28, 3, 42, 3, -2),
    Sketcher.Constraint("Symmetric", 46, 3, 48, 3, -2),
    Sketcher.Constraint("Symmetric", 44, 3, 50, 3, -2),
    Sketcher.Constraint("Symmetric", 67, 3, 72, 3, -2),
    Sketcher.Constraint("Symmetric", 62, 3, 77, 3, -2),
    Sketcher.Constraint("Symmetric", 82, 3, 87, 3, -2),
    Sketcher.Constraint("Symmetric", 64, 2, 68, 2, -2),
    Sketcher.Constraint("Symmetric", 66, 2, 70, 2, -2),
    Sketcher.Constraint("Symmetric", 61, 2, 73, 2, -2),
    Sketcher.Constraint("Symmetric", 59, 2, 75, 2, -2),
    Sketcher.Constraint("Symmetric", 78, 2, 83, 2, -2),
    Sketcher.Constraint("Symmetric", 80, 2, 85, 2, -2),
    Sketcher.Constraint("Horizontal", 9, 3, 10, 3),
    Sketcher.Constraint("Horizontal", 11, 3, 12, 3),
    Sketcher.Constraint("Horizontal", 13, 3, 14, 3),
    Sketcher.Constraint("Horizontal", 15, 3, 16, 3),
    Sketcher.Constraint("Horizontal", 33, 3, 34, 3),
    Sketcher.Constraint("Horizontal", 53, 3, 54, 3),
    Sketcher.Constraint("Horizontal", 55, 3, 56, 3),
    Sketcher.Constraint("Horizontal", 49, 3, 82, 3),
    Sketcher.Constraint("Vertical", 29, 3, 30, 3),
    Sketcher.Constraint("Vertical", 45, 3, 46, 3),
    Sketcher.Constraint("Vertical", 47, 3, 54, 3),
    Sketcher.Constraint("Vertical", 62, 3, 67, 3),
    Sketcher.Constraint("Vertical", 3, 3, 60, 2),
    Sketcher.Constraint("Vertical", 61, 2, 63, 2),
    Sketcher.Constraint("Vertical", 59, 2, 64, 2),
    Sketcher.Constraint("Equal", 75, 59),
    Sketcher.Constraint("Equal", 61, 63),
    Sketcher.Constraint("Equal", 86, 79),
    Sketcher.Constraint("Diameter", 9, 1.0),
    Sketcher.Constraint("Diameter", 28, 2.0),
    Sketcher.Constraint("Diameter", 0, 5.8),
    Sketcher.Constraint("Diameter", 1, 3.1),
    Sketcher.Constraint("Diameter", 8, 1.5),
    Sketcher.Constraint("Diameter", 29, 1.25),
    Sketcher.Constraint("DistanceX", 58, 1, 58, 2, 3.0),
    Sketcher.Constraint("DistanceX", 78, 1, 78, 2, 2.5),
    Sketcher.Constraint("DistanceX", -1, 1, 0, 3, 27.0),
    Sketcher.Constraint("DistanceX", -1, 1, 52, 3, 15.0),
    Sketcher.Constraint("DistanceX", -1, 1, 56, 3, 10.0),
    Sketcher.Constraint("DistanceX", -1, 1, 78, 2, 6.0),
    Sketcher.Constraint("DistanceY", -1, 1, 0, 3, 15.5),
    Sketcher.Constraint("DistanceY", 8, 3, -1, 1, 7.5),
    Sketcher.Constraint("DistanceX", -1, 1, 14, 3, 10.5),
    Sketcher.Constraint("DistanceX", -1, 1, 28, 3, 25.5),
    Sketcher.Constraint("DistanceY", -1, 1, 28, 3, 0.3),
    Sketcher.Constraint("DistanceY", -1, 1, 30, 3, 5.3),
    Sketcher.Constraint("DistanceY", 32, 3, -1, 1, 11.5),
    Sketcher.Constraint("DistanceX", -1, 1, 44, 3, 12.5),
    Sketcher.Constraint("DistanceY", -1, 1, 44, 3, 3.5),
    Sketcher.Constraint("DistanceY", -1, 1, 46, 3, 8.5),
    Sketcher.Constraint("DistanceY", -1, 1, 52, 3, 14.5),
    Sketcher.Constraint("DistanceX", -1, 1, 62, 3, 28.5),
    Sketcher.Constraint("DistanceY", 62, 3, -1, 1, 3.7),
    Sketcher.Constraint("DistanceY", -1, 1, 67, 3, 9.3),
    Sketcher.Constraint("DistanceY", 58, 2, -1, 1, 5.2),
    Sketcher.Constraint("DistanceY", -1, 1, 63, 2, 7.8),
    Sketcher.Constraint("DistanceX", -1, 1, 10, 3, 13.75),
    Sketcher.Constraint("DistanceX", -1, 1, 82, 3, 4.75),
    Sketcher.Constraint("DistanceY", -1, 1, 78, 2, 7.25),
    Sketcher.Constraint("DistanceX", -1, 1, 8, 3, 15.375),
    Sketcher.Constraint("DistanceX", -1, 1, 12, 3, 12.125),
    Sketcher.Constraint("DistanceX", -1, 1, 16, 3, 8.875),
    Sketcher.Constraint("DistanceX", -1, 1, 32, 3, 21.1375),
    Sketcher.Constraint("DistanceX", -1, 1, 34, 3, 3.1125),
])
sketch3.setExpression("Constraints[176]", "Params.sketch3_diameter")
sketch3.setExpression("Constraints[177]", "Params.sketch3_diameter2")
sketch3.setExpression("Constraints[178]", "Params.sketch3_diameter3")
sketch3.setExpression("Constraints[179]", "Params.sketch3_diameter4")
sketch3.setExpression("Constraints[180]", "Params.sketch3_diameter5")
pad2 = body.newObject("PartDesign::Pad", "Pad001")
pad2.Profile = sketch3
pad2.setExpression("Length", "Params.pad2_length")
pad2.Reversed = True
doc.recompute()

mirrored = body.newObject("PartDesign::Mirrored", "Mirrored")
mirrored.Originals = [pad2]
mirrored.MirrorPlane = (doc.getObject("XZ_Plane"), [""])
body.Tip = mirrored

doc.recompute()
